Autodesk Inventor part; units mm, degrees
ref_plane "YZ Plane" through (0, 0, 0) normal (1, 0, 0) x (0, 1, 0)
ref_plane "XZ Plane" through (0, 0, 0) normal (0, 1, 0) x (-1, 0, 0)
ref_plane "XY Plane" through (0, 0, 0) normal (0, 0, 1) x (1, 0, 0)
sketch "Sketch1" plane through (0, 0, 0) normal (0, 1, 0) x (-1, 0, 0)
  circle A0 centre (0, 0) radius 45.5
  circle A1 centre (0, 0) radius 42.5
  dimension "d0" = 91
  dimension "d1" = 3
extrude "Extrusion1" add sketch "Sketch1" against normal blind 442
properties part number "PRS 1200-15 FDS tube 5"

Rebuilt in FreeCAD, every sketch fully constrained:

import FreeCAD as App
import Part
import Sketcher
from FreeCAD import Vector
Q = App.Units.Quantity

doc = App.newDocument("Part")
params = doc.addObject("Spreadsheet::Sheet", "Params")
for row, (alias, value) in enumerate([
    ("sketch1_diameter", "91 mm"),
    ("sketch1_diameter2", "85 mm"),
    ("pad1_length", "442 mm"),
], start=1):
    params.set(f"A{row}", alias)
    params.set(f"B{row}", "=" + value)
    params.setAlias(f"B{row}", alias)

body = doc.addObject("PartDesign::Body", "Body")

# Sketch on XZ plane
sketch1 = body.newObject("Sketcher::SketchObject", "Sketch")
sketch1.AttachmentSupport = (doc.getObject("XZ_Plane"), [""])
sketch1.MapMode = "FlatFace"
sketch1.addGeometry(Part.Circle(Vector(0, 0, 0), Vector(0, 0, 1), 46), False)
sketch1.addGeometry(Part.Circle(Vector(0, 0, 0), Vector(0, 0, 1), 42), False)
sketch1.addConstraint(Sketcher.Constraint("Coincident", 0, 3, -1, 1))
sketch1.addConstraint(Sketcher.Constraint("Coincident", 1, 3, -1, 1))
sketch1.addConstraint(Sketcher.Constraint("Diameter", 0, Q("91 mm")))
sketch1.addConstraint(Sketcher.Constraint("Diameter", 1, Q("85 mm")))
sketch1.setExpression("Constraints[2]", "Params.sketch1_diameter")
sketch1.setExpression("Constraints[3]", "Params.sketch1_diameter2")
pad1 = body.newObject("PartDesign::Pad", "Pad")
pad1.Profile = sketch1
pad1.setExpression("Length", "Params.pad1_length")

doc.recompute()
